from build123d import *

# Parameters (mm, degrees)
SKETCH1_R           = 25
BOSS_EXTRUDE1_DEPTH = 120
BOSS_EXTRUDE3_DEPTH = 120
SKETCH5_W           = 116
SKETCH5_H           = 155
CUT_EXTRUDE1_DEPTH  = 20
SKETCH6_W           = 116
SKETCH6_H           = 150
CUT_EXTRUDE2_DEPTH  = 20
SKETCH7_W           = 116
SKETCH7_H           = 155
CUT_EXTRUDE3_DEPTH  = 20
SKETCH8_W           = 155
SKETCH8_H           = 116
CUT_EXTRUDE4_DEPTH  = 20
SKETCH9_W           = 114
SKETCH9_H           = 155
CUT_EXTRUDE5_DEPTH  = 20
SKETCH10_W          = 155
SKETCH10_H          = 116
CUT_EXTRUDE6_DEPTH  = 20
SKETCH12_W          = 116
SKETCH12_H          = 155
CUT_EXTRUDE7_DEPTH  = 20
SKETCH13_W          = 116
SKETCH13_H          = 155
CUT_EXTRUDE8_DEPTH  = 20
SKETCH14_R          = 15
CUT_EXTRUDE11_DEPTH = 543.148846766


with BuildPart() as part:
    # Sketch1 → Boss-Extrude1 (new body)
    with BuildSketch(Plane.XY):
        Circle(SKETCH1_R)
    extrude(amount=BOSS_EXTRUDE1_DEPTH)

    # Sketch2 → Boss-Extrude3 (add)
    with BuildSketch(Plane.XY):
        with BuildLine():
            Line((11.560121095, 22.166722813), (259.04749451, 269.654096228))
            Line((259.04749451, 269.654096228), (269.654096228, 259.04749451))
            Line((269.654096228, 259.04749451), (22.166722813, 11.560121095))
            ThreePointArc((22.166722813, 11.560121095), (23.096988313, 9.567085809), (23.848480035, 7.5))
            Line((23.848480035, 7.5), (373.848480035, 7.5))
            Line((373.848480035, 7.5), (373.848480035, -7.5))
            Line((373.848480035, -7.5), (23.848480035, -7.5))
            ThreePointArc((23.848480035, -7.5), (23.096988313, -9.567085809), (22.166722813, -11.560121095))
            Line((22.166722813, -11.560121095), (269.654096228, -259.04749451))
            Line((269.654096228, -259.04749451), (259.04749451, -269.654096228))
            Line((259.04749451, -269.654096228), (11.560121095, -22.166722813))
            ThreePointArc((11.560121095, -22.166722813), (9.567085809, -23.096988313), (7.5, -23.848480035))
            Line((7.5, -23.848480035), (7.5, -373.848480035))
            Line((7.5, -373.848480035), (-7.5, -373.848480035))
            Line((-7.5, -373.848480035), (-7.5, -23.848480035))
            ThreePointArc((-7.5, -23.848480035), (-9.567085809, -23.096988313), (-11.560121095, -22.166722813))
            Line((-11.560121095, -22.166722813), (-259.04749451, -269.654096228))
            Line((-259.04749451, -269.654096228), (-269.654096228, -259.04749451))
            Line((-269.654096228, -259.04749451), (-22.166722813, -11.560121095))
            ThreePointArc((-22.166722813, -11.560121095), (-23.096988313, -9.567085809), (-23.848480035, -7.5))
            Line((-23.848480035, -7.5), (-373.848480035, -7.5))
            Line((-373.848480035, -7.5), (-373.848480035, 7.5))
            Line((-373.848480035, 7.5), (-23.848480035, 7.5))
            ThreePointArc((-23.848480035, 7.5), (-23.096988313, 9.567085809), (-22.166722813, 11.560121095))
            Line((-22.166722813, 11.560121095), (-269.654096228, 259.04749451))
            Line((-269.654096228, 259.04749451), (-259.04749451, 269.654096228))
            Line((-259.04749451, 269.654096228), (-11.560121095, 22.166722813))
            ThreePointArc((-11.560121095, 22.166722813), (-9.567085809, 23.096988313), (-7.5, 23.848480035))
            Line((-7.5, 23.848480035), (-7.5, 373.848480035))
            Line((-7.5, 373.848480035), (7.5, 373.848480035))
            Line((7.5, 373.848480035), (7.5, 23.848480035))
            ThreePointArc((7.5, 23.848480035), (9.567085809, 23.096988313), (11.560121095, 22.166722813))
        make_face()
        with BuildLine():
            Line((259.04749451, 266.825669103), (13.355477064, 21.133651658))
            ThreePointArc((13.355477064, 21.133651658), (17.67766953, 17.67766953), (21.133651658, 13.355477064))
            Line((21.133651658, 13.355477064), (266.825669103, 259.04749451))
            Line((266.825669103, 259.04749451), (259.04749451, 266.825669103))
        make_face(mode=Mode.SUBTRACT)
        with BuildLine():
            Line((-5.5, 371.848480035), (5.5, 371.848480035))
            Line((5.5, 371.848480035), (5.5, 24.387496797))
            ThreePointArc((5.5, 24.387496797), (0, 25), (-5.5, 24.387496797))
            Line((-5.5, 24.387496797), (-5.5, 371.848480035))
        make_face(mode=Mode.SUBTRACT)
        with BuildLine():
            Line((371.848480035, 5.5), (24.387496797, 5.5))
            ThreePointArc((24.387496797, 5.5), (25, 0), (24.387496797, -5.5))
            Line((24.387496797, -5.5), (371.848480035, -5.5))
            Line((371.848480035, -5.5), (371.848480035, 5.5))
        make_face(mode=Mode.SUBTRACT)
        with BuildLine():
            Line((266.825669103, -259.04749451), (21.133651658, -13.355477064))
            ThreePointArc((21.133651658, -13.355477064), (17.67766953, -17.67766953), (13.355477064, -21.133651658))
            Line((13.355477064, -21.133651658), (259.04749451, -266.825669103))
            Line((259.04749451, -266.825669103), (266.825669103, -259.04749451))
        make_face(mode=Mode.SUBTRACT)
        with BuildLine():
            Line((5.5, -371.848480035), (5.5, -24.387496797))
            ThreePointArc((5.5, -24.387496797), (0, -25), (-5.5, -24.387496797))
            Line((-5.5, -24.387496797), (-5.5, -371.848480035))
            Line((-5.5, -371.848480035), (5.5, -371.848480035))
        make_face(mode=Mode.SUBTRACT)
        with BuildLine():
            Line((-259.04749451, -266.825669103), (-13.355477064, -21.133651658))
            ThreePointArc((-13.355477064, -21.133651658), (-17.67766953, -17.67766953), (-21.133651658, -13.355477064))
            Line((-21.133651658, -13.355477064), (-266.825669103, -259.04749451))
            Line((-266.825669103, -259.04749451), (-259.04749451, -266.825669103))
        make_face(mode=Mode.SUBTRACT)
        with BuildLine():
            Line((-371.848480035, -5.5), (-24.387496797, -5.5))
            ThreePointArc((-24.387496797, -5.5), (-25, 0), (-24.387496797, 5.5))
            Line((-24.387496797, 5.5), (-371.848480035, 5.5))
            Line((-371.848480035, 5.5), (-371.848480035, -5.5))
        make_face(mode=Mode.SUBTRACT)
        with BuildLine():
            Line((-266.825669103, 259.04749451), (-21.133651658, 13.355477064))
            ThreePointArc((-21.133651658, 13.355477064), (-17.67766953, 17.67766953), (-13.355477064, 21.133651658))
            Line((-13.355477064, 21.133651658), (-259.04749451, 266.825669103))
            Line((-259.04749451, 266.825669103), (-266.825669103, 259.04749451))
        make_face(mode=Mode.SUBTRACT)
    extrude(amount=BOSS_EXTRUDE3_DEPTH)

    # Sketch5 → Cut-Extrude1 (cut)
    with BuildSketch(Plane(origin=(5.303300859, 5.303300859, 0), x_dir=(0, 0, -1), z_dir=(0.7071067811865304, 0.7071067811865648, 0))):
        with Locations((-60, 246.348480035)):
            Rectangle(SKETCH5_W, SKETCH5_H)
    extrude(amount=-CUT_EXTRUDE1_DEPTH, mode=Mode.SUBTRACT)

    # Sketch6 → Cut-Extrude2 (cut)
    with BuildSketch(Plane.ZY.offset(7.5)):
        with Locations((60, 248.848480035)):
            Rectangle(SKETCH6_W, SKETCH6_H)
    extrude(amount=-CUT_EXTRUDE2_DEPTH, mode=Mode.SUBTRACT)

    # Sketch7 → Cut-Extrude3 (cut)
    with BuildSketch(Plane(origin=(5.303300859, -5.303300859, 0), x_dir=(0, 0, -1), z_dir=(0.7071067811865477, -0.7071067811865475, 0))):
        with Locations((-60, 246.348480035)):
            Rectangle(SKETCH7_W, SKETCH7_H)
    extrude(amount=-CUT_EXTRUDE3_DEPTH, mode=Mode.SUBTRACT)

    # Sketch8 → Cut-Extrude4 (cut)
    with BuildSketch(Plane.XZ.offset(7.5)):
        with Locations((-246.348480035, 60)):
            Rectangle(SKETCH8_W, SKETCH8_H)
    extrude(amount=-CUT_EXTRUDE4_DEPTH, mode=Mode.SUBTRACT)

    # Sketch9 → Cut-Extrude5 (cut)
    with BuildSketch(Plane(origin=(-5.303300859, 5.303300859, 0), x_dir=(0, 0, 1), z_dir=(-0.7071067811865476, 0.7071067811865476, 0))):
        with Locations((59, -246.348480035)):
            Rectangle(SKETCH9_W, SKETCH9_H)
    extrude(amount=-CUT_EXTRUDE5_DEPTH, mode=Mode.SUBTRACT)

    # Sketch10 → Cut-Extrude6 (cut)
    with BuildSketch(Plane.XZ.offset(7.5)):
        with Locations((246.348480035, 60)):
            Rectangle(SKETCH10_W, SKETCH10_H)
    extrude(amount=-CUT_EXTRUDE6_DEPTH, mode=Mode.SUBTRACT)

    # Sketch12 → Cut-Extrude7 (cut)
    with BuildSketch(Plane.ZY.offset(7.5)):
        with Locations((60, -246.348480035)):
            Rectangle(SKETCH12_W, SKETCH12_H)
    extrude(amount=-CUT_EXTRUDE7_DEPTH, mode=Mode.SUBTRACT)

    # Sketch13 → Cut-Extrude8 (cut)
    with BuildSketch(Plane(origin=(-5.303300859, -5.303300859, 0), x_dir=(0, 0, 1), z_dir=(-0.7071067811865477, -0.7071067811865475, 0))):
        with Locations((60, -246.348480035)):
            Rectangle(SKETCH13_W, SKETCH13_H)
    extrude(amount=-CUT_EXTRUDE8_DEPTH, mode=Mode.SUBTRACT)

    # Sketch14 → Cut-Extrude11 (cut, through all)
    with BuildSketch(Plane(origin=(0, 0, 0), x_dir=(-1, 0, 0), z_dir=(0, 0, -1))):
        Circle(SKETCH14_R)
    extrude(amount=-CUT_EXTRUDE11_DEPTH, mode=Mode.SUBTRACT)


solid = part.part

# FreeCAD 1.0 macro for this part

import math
import FreeCAD as App
import Part
import Sketcher
from FreeCAD import Vector
Q = App.Units.Quantity


def add_polygon(sketch, points):
    """Adds a closed chain of lines whose ends are joined by coincident constraints."""
    first, n = sketch.GeometryCount, len(points)
    for a, b in zip(points, points[1:] + points[:1]):
        sketch.addGeometry(Part.LineSegment(App.Vector(*a, 0), App.Vector(*b, 0)), False)
    for i in range(n):
        sketch.addConstraint(Sketcher.Constraint("Coincident", first + i, 2, first + (i + 1) % n, 1))

doc = App.newDocument("Part")
body = doc.addObject("PartDesign::Body", "Body")

sketch1 = body.newObject("Sketcher::SketchObject", "Sketch")
sketch1.AttachmentSupport = (doc.getObject("XY_Plane"), [""])
sketch1.MapMode = "FlatFace"
sketch1.addGeometry(Part.Circle(Vector(0, 0, 0), Vector(0, 0, 1), 25), False)
sketch1.addConstraint(Sketcher.Constraint("Coincident", 0, 3, -1, 1))
sketch1.addConstraint(Sketcher.Constraint("Diameter", 0, Q("50 mm")))
pad1 = body.newObject("PartDesign::Pad", "Pad")
pad1.Profile = sketch1
pad1.Length = 120

sketch2 = body.newObject("Sketcher::SketchObject", "Sketch001")
sketch2.AttachmentSupport = (doc.getObject("XY_Plane"), [""])
sketch2.MapMode = "FlatFace"
sketch2.addGeometry(Part.LineSegment(Vector(259, 269.7, 0), Vector(11.6, 22.2, 0)), False)
sketch2.addGeometry(Part.ArcOfCircle(Part.Circle(Vector(0, 0, 0), Vector(0, 0, 1), 25), math.radians(62.46), math.radians(72.54)), False)
sketch2.addGeometry(Part.LineSegment(Vector(7.5, 23.8, 0), Vector(7.5, 373.8, 0)), False)
sketch2.addGeometry(Part.LineSegment(Vector(7.5, 373.8, 0), Vector(-7.5, 373.8, 0)), False)
sketch2.addGeometry(Part.LineSegment(Vector(-7.5, 373.8, 0), Vector(-7.5, 23.8, 0)), False)
sketch2.addGeometry(Part.ArcOfCircle(Part.Circle(Vector(0, 0, 0), Vector(0, 0, 1), 25), math.radians(107.46), math.radians(117.54)), False)
sketch2.addGeometry(Part.LineSegment(Vector(-11.6, 22.2, 0), Vector(-259, 269.7, 0)), False)
sketch2.addGeometry(Part.LineSegment(Vector(-259, 269.7, 0), Vector(-269.7, 259, 0)), False)
sketch2.addGeometry(Part.LineSegment(Vector(-269.7, 259, 0), Vector(-22.2, 11.6, 0)), False)
sketch2.addGeometry(Part.ArcOfCircle(Part.Circle(Vector(0, 0, 0), Vector(0, 0, 1), 25), math.radians(152.46), math.radians(162.54)), False)
sketch2.addGeometry(Part.LineSegment(Vector(-23.8, 7.5, 0), Vector(-373.8, 7.5, 0)), False)
sketch2.addGeometry(Part.LineSegment(Vector(-373.8, 7.5, 0), Vector(-373.8, -7.5, 0)), False)
sketch2.addGeometry(Part.LineSegment(Vector(-373.8, -7.5, 0), Vector(-23.8, -7.5, 0)), False)
sketch2.addGeometry(Part.ArcOfCircle(Part.Circle(Vector(0, 0, 0), Vector(0, 0, 1), 25), math.radians(-162.54), math.radians(-152.46)), False)
sketch2.addGeometry(Part.LineSegment(Vector(-22.2, -11.6, 0), Vector(-269.7, -259, 0)), False)
sketch2.addGeometry(Part.LineSegment(Vector(-269.7, -259, 0), Vector(-259, -269.7, 0)), False)
sketch2.addGeometry(Part.LineSegment(Vector(-259, -269.7, 0), Vector(-11.6, -22.2, 0)), False)
sketch2.addGeometry(Part.ArcOfCircle(Part.Circle(Vector(0, 0, 0), Vector(0, 0, 1), 25), math.radians(-117.54), math.radians(-107.46)), False)
sketch2.addGeometry(Part.LineSegment(Vector(-7.5, -23.8, 0), Vector(-7.5, -373.8, 0)), False)
sketch2.addGeometry(Part.LineSegment(Vector(-7.5, -373.8, 0), Vector(7.5, -373.8, 0)), False)
sketch2.addGeometry(Part.LineSegment(Vector(7.5, -373.8, 0), Vector(7.5, -23.8, 0)), False)
sketch2.addGeometry(Part.ArcOfCircle(Part.Circle(Vector(0, 0, 0), Vector(0, 0, 1), 25), math.radians(-72.54), math.radians(-62.46)), False)
sketch2.addGeometry(Part.LineSegment(Vector(11.6, -22.2, 0), Vector(259, -269.7, 0)), False)
sketch2.addGeometry(Part.LineSegment(Vector(259, -269.7, 0), Vector(269.7, -259, 0)), False)
sketch2.addGeometry(Part.LineSegment(Vector(269.7, -259, 0), Vector(22.2, -11.6, 0)), False)
sketch2.addGeometry(Part.ArcOfCircle(Part.Circle(Vector(0, 0, 0), Vector(0, 0, 1), 25), math.radians(-27.54), math.radians(-17.46)), False)
sketch2.addGeometry(Part.LineSegment(Vector(23.8, -7.5, 0), Vector(373.8, -7.5, 0)), False)
sketch2.addGeometry(Part.LineSegment(Vector(373.8, -7.5, 0), Vector(373.8, 7.5, 0)), False)
sketch2.addGeometry(Part.LineSegment(Vector(373.8, 7.5, 0), Vector(23.8, 7.5, 0)), False)
sketch2.addGeometry(Part.ArcOfCircle(Part.Circle(Vector(0, 0, 0), Vector(0, 0, 1), 25), math.radians(17.46), math.radians(27.54)), False)
sketch2.addGeometry(Part.LineSegment(Vector(22.2, 11.6, 0), Vector(269.7, 259, 0)), False)
sketch2.addGeometry(Part.LineSegment(Vector(269.7, 259, 0), Vector(259, 269.7, 0)), False)
sketch2.addGeometry(Part.LineSegment(Vector(266.8, -259, 0), Vector(259, -266.8, 0)), False)
sketch2.addGeometry(Part.LineSegment(Vector(259, -266.8, 0), Vector(13.4, -21.1, 0)), False)
sketch2.addGeometry(Part.ArcOfCircle(Part.Circle(Vector(0, 0, 0), Vector(0, 0, 1), 25), math.radians(-58), math.radians(-32)), False)
sketch2.addGeometry(Part.LineSegment(Vector(21.1, -13.4, 0), Vector(266.8, -259, 0)), False)
sketch2.addGeometry(Part.LineSegment(Vector(5.5, -371.8, 0), Vector(-5.5, -371.8, 0)), False)
sketch2.addGeometry(Part.LineSegment(Vector(-5.5, -371.8, 0), Vector(-5.5, -24.4, 0)), False)
sketch2.addGeometry(Part.ArcOfCircle(Part.Circle(Vector(0, 0, 0), Vector(0, 0, 1), 25), math.radians(-103), math.radians(-77)), False)
sketch2.addGeometry(Part.LineSegment(Vector(5.5, -24.4, 0), Vector(5.5, -371.8, 0)), False)
sketch2.addGeometry(Part.LineSegment(Vector(-259, -266.8, 0), Vector(-266.8, -259, 0)), False)
sketch2.addGeometry(Part.LineSegment(Vector(-266.8, -259, 0), Vector(-21.1, -13.4, 0)), False)
sketch2.addGeometry(Part.ArcOfCircle(Part.Circle(Vector(0, 0, 0), Vector(0, 0, 1), 25), math.radians(-148), math.radians(-122)), False)
sketch2.addGeometry(Part.LineSegment(Vector(-13.4, -21.1, 0), Vector(-259, -266.8, 0)), False)
sketch2.addGeometry(Part.LineSegment(Vector(371.8, 5.5, 0), Vector(371.8, -5.5, 0)), False)
sketch2.addGeometry(Part.LineSegment(Vector(371.8, -5.5, 0), Vector(24.4, -5.5, 0)), False)
sketch2.addGeometry(Part.ArcOfCircle(Part.Circle(Vector(0, 0, 0), Vector(0, 0, 1), 25), math.radians(-13), math.radians(13)), False)
sketch2.addGeometry(Part.LineSegment(Vector(24.4, 5.5, 0), Vector(371.8, 5.5, 0)), False)
sketch2.addGeometry(Part.LineSegment(Vector(259, 266.8, 0), Vector(266.8, 259, 0)), False)
sketch2.addGeometry(Part.LineSegment(Vector(266.8, 259, 0), Vector(21.1, 13.4, 0)), False)
sketch2.addGeometry(Part.ArcOfCircle(Part.Circle(Vector(0, 0, 0), Vector(0, 0, 1), 25), math.radians(32), math.radians(58)), False)
sketch2.addGeometry(Part.LineSegment(Vector(13.4, 21.1, 0), Vector(259, 266.8, 0)), False)
sketch2.addGeometry(Part.LineSegment(Vector(-266.8, 259, 0), Vector(-259, 266.8, 0)), False)
sketch2.addGeometry(Part.LineSegment(Vector(-259, 266.8, 0), Vector(-13.4, 21.1, 0)), False)
sketch2.addGeometry(Part.ArcOfCircle(Part.Circle(Vector(0, 0, 0), Vector(0, 0, 1), 25), math.radians(122), math.radians(148)), False)
sketch2.addGeometry(Part.LineSegment(Vector(-21.1, 13.4, 0), Vector(-266.8, 259, 0)), False)
sketch2.addGeometry(Part.LineSegment(Vector(-371.8, -5.5, 0), Vector(-371.8, 5.5, 0)), False)
sketch2.addGeometry(Part.LineSegment(Vector(-371.8, 5.5, 0), Vector(-24.4, 5.5, 0)), False)
sketch2.addGeometry(Part.ArcOfCircle(Part.Circle(Vector(0, 0, 0), Vector(0, 0, 1), 25), math.radians(167), math.radians(193)), False)
sketch2.addGeometry(Part.LineSegment(Vector(-24.4, -5.5, 0), Vector(-371.8, -5.5, 0)), False)
sketch2.addGeometry(Part.LineSegment(Vector(-5.5, 371.8, 0), Vector(5.5, 371.8, 0)), False)
sketch2.addGeometry(Part.LineSegment(Vector(5.5, 371.8, 0), Vector(5.5, 24.4, 0)), False)
sketch2.addGeometry(Part.ArcOfCircle(Part.Circle(Vector(0, 0, 0), Vector(0, 0, 1), 25), math.radians(77), math.radians(103)), False)
sketch2.addGeometry(Part.LineSegment(Vector(-5.5, 24.4, 0), Vector(-5.5, 371.8, 0)), False)
sketch2.addConstraint(Sketcher.Constraint("Coincident", 0, 2, 1, 1))
sketch2.addConstraint(Sketcher.Constraint("Coincident", 1, 2, 2, 1))
sketch2.addConstraint(Sketcher.Constraint("Coincident", 2, 2, 3, 1))
sketch2.addConstraint(Sketcher.Constraint("Coincident", 3, 2, 4, 1))
sketch2.addConstraint(Sketcher.Constraint("Coincident", 4, 2, 5, 1))
sketch2.addConstraint(Sketcher.Constraint("Coincident", 5, 2, 6, 1))
sketch2.addConstraint(Sketcher.Constraint("Coincident", 6, 2, 7, 1))
sketch2.addConstraint(Sketcher.Constraint("Coincident", 7, 2, 8, 1))
sketch2.addConstraint(Sketcher.Constraint("Coincident", 8, 2, 9, 1))
sketch2.addConstraint(Sketcher.Constraint("Coincident", 9, 2, 10, 1))
sketch2.addConstraint(Sketcher.Constraint("Coincident", 10, 2, 11, 1))
sketch2.addConstraint(Sketcher.Constraint("Coincident", 11, 2, 12, 1))
sketch2.addConstraint(Sketcher.Constraint("Coincident", 12, 2, 13, 1))
sketch2.addConstraint(Sketcher.Constraint("Coincident", 13, 2, 14, 1))
sketch2.addConstraint(Sketcher.Constraint("Coincident", 14, 2, 15, 1))
sketch2.addConstraint(Sketcher.Constraint("Coincident", 15, 2, 16, 1))
sketch2.addConstraint(Sketcher.Constraint("Coincident", 16, 2, 17, 1))
sketch2.addConstraint(Sketcher.Constraint("Coincident", 17, 2, 18, 1))
sketch2.addConstraint(Sketcher.Constraint("Coincident", 18, 2, 19, 1))
sketch2.addConstraint(Sketcher.Constraint("Coincident", 19, 2, 20, 1))
sketch2.addConstraint(Sketcher.Constraint("Coincident", 20, 2, 21, 1))
sketch2.addConstraint(Sketcher.Constraint("Coincident", 21, 2, 22, 1))
sketch2.addConstraint(Sketcher.Constraint("Coincident", 22, 2, 23, 1))
sketch2.addConstraint(Sketcher.Constraint("Coincident", 23, 2, 24, 1))
sketch2.addConstraint(Sketcher.Constraint("Coincident", 24, 2, 25, 1))
sketch2.addConstraint(Sketcher.Constraint("Coincident", 25, 2, 26, 1))
sketch2.addConstraint(Sketcher.Constraint("Coincident", 26, 2, 27, 1))
sketch2.addConstraint(Sketcher.Constraint("Coincident", 27, 2, 28, 1))
sketch2.addConstraint(Sketcher.Constraint("Coincident", 28, 2, 29, 1))
sketch2.addConstraint(Sketcher.Constraint("Coincident", 29, 2, 30, 1))
sketch2.addConstraint(Sketcher.Constraint("Coincident", 30, 2, 31, 1))
sketch2.addConstraint(Sketcher.Constraint("Coincident", 31, 2, 0, 1))
sketch2.addConstraint(Sketcher.Constraint("Coincident", 32, 2, 33, 1))
sketch2.addConstraint(Sketcher.Constraint("Coincident", 33, 2, 34, 1))
sketch2.addConstraint(Sketcher.Constraint("Coincident", 34, 2, 35, 1))
sketch2.addConstraint(Sketcher.Constraint("Coincident", 35, 2, 32, 1))
sketch2.addConstraint(Sketcher.Constraint("Coincident", 36, 2, 37, 1))
sketch2.addConstraint(Sketcher.Constraint("Coincident", 37, 2, 38, 1))
sketch2.addConstraint(Sketcher.Constraint("Coincident", 38, 2, 39, 1))
sketch2.addConstraint(Sketcher.Constraint("Coincident", 39, 2, 36, 1))
sketch2.addConstraint(Sketcher.Constraint("Coincident", 40, 2, 41, 1))
sketch2.addConstraint(Sketcher.Constraint("Coincident", 41, 2, 42, 1))
sketch2.addConstraint(Sketcher.Constraint("Coincident", 42, 2, 43, 1))
sketch2.addConstraint(Sketcher.Constraint("Coincident", 43, 2, 40, 1))
sketch2.addConstraint(Sketcher.Constraint("Coincident", 44, 2, 45, 1))
sketch2.addConstraint(Sketcher.Constraint("Coincident", 45, 2, 46, 1))
sketch2.addConstraint(Sketcher.Constraint("Coincident", 46, 2, 47, 1))
sketch2.addConstraint(Sketcher.Constraint("Coincident", 47, 2, 44, 1))
sketch2.addConstraint(Sketcher.Constraint("Coincident", 48, 2, 49, 1))
sketch2.addConstraint(Sketcher.Constraint("Coincident", 49, 2, 50, 1))
sketch2.addConstraint(Sketcher.Constraint("Coincident", 50, 2, 51, 1))
sketch2.addConstraint(Sketcher.Constraint("Coincident", 51, 2, 48, 1))
sketch2.addConstraint(Sketcher.Constraint("Coincident", 52, 2, 53, 1))
sketch2.addConstraint(Sketcher.Constraint("Coincident", 53, 2, 54, 1))
sketch2.addConstraint(Sketcher.Constraint("Coincident", 54, 2, 55, 1))
sketch2.addConstraint(Sketcher.Constraint("Coincident", 55, 2, 52, 1))
sketch2.addConstraint(Sketcher.Constraint("Coincident", 56, 2, 57, 1))
sketch2.addConstraint(Sketcher.Constraint("Coincident", 57, 2, 58, 1))
sketch2.addConstraint(Sketcher.Constraint("Coincident", 58, 2, 59, 1))
sketch2.addConstraint(Sketcher.Constraint("Coincident", 59, 2, 56, 1))
sketch2.addConstraint(Sketcher.Constraint("Coincident", 60, 2, 61, 1))
sketch2.addConstraint(Sketcher.Constraint("Coincident", 61, 2, 62, 1))
sketch2.addConstraint(Sketcher.Constraint("Coincident", 62, 2, 63, 1))
sketch2.addConstraint(Sketcher.Constraint("Coincident", 63, 2, 60, 1))
sketch2.addConstraint(Sketcher.Constraint("Vertical", 2))
sketch2.addConstraint(Sketcher.Constraint("Horizontal", 3))
sketch2.addConstraint(Sketcher.Constraint("Vertical", 4))
sketch2.addConstraint(Sketcher.Constraint("Horizontal", 10))
sketch2.addConstraint(Sketcher.Constraint("Vertical", 11))
sketch2.addConstraint(Sketcher.Constraint("Horizontal", 12))
sketch2.addConstraint(Sketcher.Constraint("Vertical", 18))
sketch2.addConstraint(Sketcher.Constraint("Horizontal", 19))
sketch2.addConstraint(Sketcher.Constraint("Vertical", 20))
sketch2.addConstraint(Sketcher.Constraint("Horizontal", 26))
sketch2.addConstraint(Sketcher.Constraint("Vertical", 27))
sketch2.addConstraint(Sketcher.Constraint("Horizontal", 28))
sketch2.addConstraint(Sketcher.Constraint("Horizontal", 36))
sketch2.addConstraint(Sketcher.Constraint("Vertical", 37))
sketch2.addConstraint(Sketcher.Constraint("Vertical", 39))
sketch2.addConstraint(Sketcher.Constraint("Vertical", 44))
sketch2.addConstraint(Sketcher.Constraint("Horizontal", 45))
sketch2.addConstraint(Sketcher.Constraint("Horizontal", 47))
sketch2.addConstraint(Sketcher.Constraint("Vertical", 56))
sketch2.addConstraint(Sketcher.Constraint("Horizontal", 57))
sketch2.addConstraint(Sketcher.Constraint("Horizontal", 59))
sketch2.addConstraint(Sketcher.Constraint("Horizontal", 60))
sketch2.addConstraint(Sketcher.Constraint("Vertical", 61))
sketch2.addConstraint(Sketcher.Constraint("Vertical", 63))
sketch2.addConstraint(Sketcher.Constraint("Coincident", 1, 3, -1, 1))
sketch2.addConstraint(Sketcher.Constraint("Coincident", 5, 3, -1, 1))
sketch2.addConstraint(Sketcher.Constraint("Coincident", 9, 3, -1, 1))
sketch2.addConstraint(Sketcher.Constraint("Coincident", 13, 3, -1, 1))
sketch2.addConstraint(Sketcher.Constraint("Coincident", 17, 3, -1, 1))
sketch2.addConstraint(Sketcher.Constraint("Coincident", 21, 3, -1, 1))
sketch2.addConstraint(Sketcher.Constraint("Coincident", 25, 3, -1, 1))
sketch2.addConstraint(Sketcher.Constraint("Coincident", 29, 3, -1, 1))
sketch2.addConstraint(Sketcher.Constraint("Coincident", 34, 3, -1, 1))
sketch2.addConstraint(Sketcher.Constraint("Coincident", 38, 3, -1, 1))
sketch2.addConstraint(Sketcher.Constraint("Coincident", 42, 3, -1, 1))
sketch2.addConstraint(Sketcher.Constraint("Coincident", 46, 3, -1, 1))
sketch2.addConstraint(Sketcher.Constraint("Coincident", 50, 3, -1, 1))
sketch2.addConstraint(Sketcher.Constraint("Coincident", 54, 3, -1, 1))
sketch2.addConstraint(Sketcher.Constraint("Coincident", 58, 3, -1, 1))
sketch2.addConstraint(Sketcher.Constraint("Coincident", 62, 3, -1, 1))
sketch2.addConstraint(Sketcher.Constraint("Equal", 1, 5))
sketch2.addConstraint(Sketcher.Constraint("Equal", 5, 9))
sketch2.addConstraint(Sketcher.Constraint("Equal", 9, 13))
sketch2.addConstraint(Sketcher.Constraint("Equal", 13, 17))
sketch2.addConstraint(Sketcher.Constraint("Equal", 17, 21))
sketch2.addConstraint(Sketcher.Constraint("Equal", 21, 25))
sketch2.addConstraint(Sketcher.Constraint("Equal", 25, 29))
sketch2.addConstraint(Sketcher.Constraint("Equal", 29, 34))
sketch2.addConstraint(Sketcher.Constraint("Equal", 34, 38))
sketch2.addConstraint(Sketcher.Constraint("Equal", 38, 42))
sketch2.addConstraint(Sketcher.Constraint("Equal", 42, 46))
sketch2.addConstraint(Sketcher.Constraint("Equal", 46, 50))
sketch2.addConstraint(Sketcher.Constraint("Equal", 50, 54))
sketch2.addConstraint(Sketcher.Constraint("Equal", 54, 58))
sketch2.addConstraint(Sketcher.Constraint("Equal", 58, 62))
sketch2.addConstraint(Sketcher.Constraint("Symmetric", 2, 2, 18, 2, -1, 1))
sketch2.addConstraint(Sketcher.Constraint("Symmetric", 6, 2, 22, 2, -1, 1))
sketch2.addConstraint(Sketcher.Constraint("Symmetric", 7, 2, 23, 2, -1, 1))
sketch2.addConstraint(Sketcher.Constraint("Symmetric", 10, 2, 26, 2, -1, 1))
sketch2.addConstraint(Sketcher.Constraint("Symmetric", 14, 2, 30, 2, -1, 1))
sketch2.addConstraint(Sketcher.Constraint("Symmetric", 15, 2, 31, 2, -1, 1))
sketch2.addConstraint(Sketcher.Constraint("Symmetric", 40, 2, 48, 2, -1, 1))
sketch2.addConstraint(Sketcher.Constraint("Symmetric", 43, 2, 51, 2, -1, 1))
sketch2.addConstraint(Sketcher.Constraint("Symmetric", 32, 2, 52, 2, -1, 1))
sketch2.addConstraint(Sketcher.Constraint("Symmetric", 35, 2, 55, 2, -1, 1))
sketch2.addConstraint(Sketcher.Constraint("Symmetric", 44, 2, 56, 2, -1, 1))
sketch2.addConstraint(Sketcher.Constraint("Symmetric", 36, 2, 60, 2, -1, 1))
sketch2.addConstraint(Sketcher.Constraint("Symmetric", 15, 2, 22, 2, -2))
sketch2.addConstraint(Sketcher.Constraint("Symmetric", 14, 2, 23, 2, -2))
sketch2.addConstraint(Sketcher.Constraint("Symmetric", 35, 2, 40, 2, -2))
sketch2.addConstraint(Sketcher.Constraint("Symmetric", 32, 2, 43, 2, -2))
sketch2.addConstraint(Sketcher.Constraint("Perpendicular", 0, 6))
sketch2.addConstraint(Sketcher.Constraint("Perpendicular", 6, 7))
sketch2.addConstraint(Sketcher.Constraint("Perpendicular", 7, 8))
sketch2.addConstraint(Sketcher.Constraint("Perpendicular", 8, 14))
sketch2.addConstraint(Sketcher.Constraint("Perpendicular", 14, 15))
sketch2.addConstraint(Sketcher.Constraint("Perpendicular", 15, 16))
sketch2.addConstraint(Sketcher.Constraint("Perpendicular", 16, 22))
sketch2.addConstraint(Sketcher.Constraint("Perpendicular", 23, 24))
sketch2.addConstraint(Sketcher.Constraint("Perpendicular", 24, 30))
sketch2.addConstraint(Sketcher.Constraint("Perpendicular", 31, 32))
sketch2.addConstraint(Sketcher.Constraint("Perpendicular", 32, 33))
sketch2.addConstraint(Sketcher.Constraint("Parallel", 33, 35))
sketch2.addConstraint(Sketcher.Constraint("Perpendicular", 40, 41))
sketch2.addConstraint(Sketcher.Constraint("Parallel", 41, 43))
sketch2.addConstraint(Sketcher.Constraint("Perpendicular", 48, 49))
sketch2.addConstraint(Sketcher.Constraint("Parallel", 49, 51))
sketch2.addConstraint(Sketcher.Constraint("Perpendicular", 52, 53))
sketch2.addConstraint(Sketcher.Constraint("Parallel", 53, 55))
sketch2.addConstraint(Sketcher.Constraint("Horizontal", 1, 2, 4, 2))
sketch2.addConstraint(Sketcher.Constraint("Horizontal", 17, 2, 20, 2))
sketch2.addConstraint(Sketcher.Constraint("Horizontal", 12, 2, 25, 2))
sketch2.addConstraint(Sketcher.Constraint("Horizontal", 10, 2, 27, 2))
sketch2.addConstraint(Sketcher.Constraint("Horizontal", 23, 2, 35, 2))
sketch2.addConstraint(Sketcher.Constraint("Horizontal", 37, 2, 38, 2))
sketch2.addConstraint(Sketcher.Constraint("Horizontal", 47, 2, 56, 2))
sketch2.addConstraint(Sketcher.Constraint("Horizontal", 45, 2, 58, 2))
sketch2.addConstraint(Sketcher.Constraint("Horizontal", 61, 2, 62, 2))
sketch2.addConstraint(Sketcher.Constraint("Vertical", 31, 2, 32, 2))
sketch2.addConstraint(Sketcher.Constraint("Equal", 28, 2))
sketch2.addConstraint(Sketcher.Constraint("Equal", 19, 11))
sketch2.addConstraint(Sketcher.Constraint("Equal", 59, 37))
sketch2.addConstraint(Sketcher.Constraint("Equal", 60, 44))
sketch2.addConstraint(Sketcher.Constraint("Equal", 6, 8))
sketch2.addConstraint(Sketcher.Constraint("Radius", 1, Q("25 mm")))
sketch2.addConstraint(Sketcher.Constraint("DistanceX", 3, 2, 3, 1, Q("15 mm")))
sketch2.addConstraint(Sketcher.Constraint("DistanceX", 10, 2, 10, 1, Q("350 mm")))
sketch2.addConstraint(Sketcher.Constraint("DistanceX", 36, 2, 36, 1, Q("11 mm")))
sketch2.addConstraint(Sketcher.Constraint("Distance", 0, Q("350 mm")))
sketch2.addConstraint(Sketcher.Constraint("Distance", 7, Q("15 mm")))
sketch2.addConstraint(Sketcher.Constraint("Distance", 32, Q("11 mm")))
sketch2.addConstraint(Sketcher.Constraint("DistanceX", 45, 2, 45, 1, Q("347.460983 mm")))
pad2 = body.newObject("PartDesign::Pad", "Pad001")
pad2.Profile = sketch2
pad2.Length = 120

sketch3 = body.newObject("Sketcher::SketchObject", "Sketch002")
sketch3.Placement = App.Placement(Vector(5.303301, 5.303301, 0), App.Rotation(Vector(0, 0, -1), Vector(-0.707106781, 0.707106781, 0), Vector(0.707106781, 0.707106781, 0), "ZXY"))
add_polygon(sketch3, [(-118, 324), (-118, 169), (-2, 169), (-2, 324)])
sketch3.addConstraint(Sketcher.Constraint("Vertical", 0))
sketch3.addConstraint(Sketcher.Constraint("Horizontal", 1))
sketch3.addConstraint(Sketcher.Constraint("Vertical", 2))
sketch3.addConstraint(Sketcher.Constraint("Horizontal", 3))
sketch3.addConstraint(Sketcher.Constraint("DistanceX", 1, 1, 1, 2, Q("116 mm")))
sketch3.addConstraint(Sketcher.Constraint("DistanceY", 0, 2, 0, 1, Q("155 mm")))
sketch3.addConstraint(Sketcher.Constraint("DistanceX", 0, 2, -1, 1, Q("118 mm")))
sketch3.addConstraint(Sketcher.Constraint("DistanceY", -1, 1, 0, 2, Q("168.84848 mm")))
pocket1 = body.newObject("PartDesign::Pocket", "Pocket")
pocket1.Profile = sketch3
pocket1.Length = 20

sketch4 = body.newObject("Sketcher::SketchObject", "Sketch003")
sketch4.AttachmentSupport = (doc.getObject("YZ_Plane"), [""])
sketch4.MapMode = "FlatFace"
sketch4.AttachmentOffset = App.Placement(Vector(0, 0, -7.5), App.Rotation())
add_polygon(sketch4, [(324, 2), (174, 2), (174, 118), (324, 118)])
sketch4.addConstraint(Sketcher.Constraint("Horizontal", 0))
sketch4.addConstraint(Sketcher.Constraint("Vertical", 1))
sketch4.addConstraint(Sketcher.Constraint("Horizontal", 2))
sketch4.addConstraint(Sketcher.Constraint("Vertical", 3))
sketch4.addConstraint(Sketcher.Constraint("DistanceX", 0, 2, 0, 1, Q("150 mm")))
sketch4.addConstraint(Sketcher.Constraint("DistanceY", 1, 1, 1, 2, Q("116 mm")))
sketch4.addConstraint(Sketcher.Constraint("DistanceY", -1, 1, 0, 2, Q("2 mm")))
sketch4.addConstraint(Sketcher.Constraint("DistanceX", -1, 1, 0, 2, Q("173.84848 mm")))
pocket2 = body.newObject("PartDesign::Pocket", "Pocket001")
pocket2.Profile = sketch4
pocket2.Length = 20
pocket2.Reversed = True

sketch5 = body.newObject("Sketcher::SketchObject", "Sketch004")
sketch5.Placement = App.Placement(Vector(5.303301, -5.303301, 0), App.Rotation(Vector(0, 0, -1), Vector(0.707106781, 0.707106781, 0), Vector(0.707106781, -0.707106781, 0), "ZXY"))
add_polygon(sketch5, [(-118, 324), (-118, 169), (-2, 169), (-2, 324)])
sketch5.addConstraint(Sketcher.Constraint("Vertical", 0))
sketch5.addConstraint(Sketcher.Constraint("Horizontal", 1))
sketch5.addConstraint(Sketcher.Constraint("Vertical", 2))
sketch5.addConstraint(Sketcher.Constraint("Horizontal", 3))
sketch5.addConstraint(Sketcher.Constraint("DistanceX", 1, 1, 1, 2, Q("116 mm")))
sketch5.addConstraint(Sketcher.Constraint("DistanceY", 0, 2, 0, 1, Q("155 mm")))
sketch5.addConstraint(Sketcher.Constraint("DistanceX", 0, 2, -1, 1, Q("118 mm")))
sketch5.addConstraint(Sketcher.Constraint("DistanceY", -1, 1, 0, 2, Q("168.84848 mm")))
pocket3 = body.newObject("PartDesign::Pocket", "Pocket002")
pocket3.Profile = sketch5
pocket3.Length = 20

sketch6 = body.newObject("Sketcher::SketchObject", "Sketch005")
sketch6.AttachmentSupport = (doc.getObject("XZ_Plane"), [""])
sketch6.MapMode = "FlatFace"
sketch6.AttachmentOffset = App.Placement(Vector(0, 0, 7.5), App.Rotation())
add_polygon(sketch6, [(-324, 118), (-324, 2), (-169, 2), (-169, 118)])
sketch6.addConstraint(Sketcher.Constraint("Vertical", 0))
sketch6.addConstraint(Sketcher.Constraint("Horizontal", 1))
sketch6.addConstraint(Sketcher.Constraint("Vertical", 2))
sketch6.addConstraint(Sketcher.Constraint("Horizontal", 3))
sketch6.addConstraint(Sketcher.Constraint("DistanceX", 1, 1, 1, 2, Q("155 mm")))
sketch6.addConstraint(Sketcher.Constraint("DistanceY", 0, 2, 0, 1, Q("116 mm")))
sketch6.addConstraint(Sketcher.Constraint("DistanceY", -1, 1, 0, 2, Q("2 mm")))
sketch6.addConstraint(Sketcher.Constraint("DistanceX", 0, 2, -1, 1, Q("323.84848 mm")))
pocket4 = body.newObject("PartDesign::Pocket", "Pocket003")
pocket4.Profile = sketch6
pocket4.Length = 20

sketch7 = body.newObject("Sketcher::SketchObject", "Sketch006")
sketch7.Placement = App.Placement(Vector(-5.303301, 5.303301, 0), App.Rotation(Vector(0, 0, 1), Vector(0.707106781, 0.707106781, 0), Vector(-0.707106781, 0.707106781, 0), "ZXY"))
add_polygon(sketch7, [(2, -169), (2, -324), (116, -324), (116, -169)])
sketch7.addConstraint(Sketcher.Constraint("Vertical", 0))
sketch7.addConstraint(Sketcher.Constraint("Horizontal", 1))
sketch7.addConstraint(Sketcher.Constraint("Vertical", 2))
sketch7.addConstraint(Sketcher.Constraint("Horizontal", 3))
sketch7.addConstraint(Sketcher.Constraint("DistanceX", 1, 1, 1, 2, Q("114 mm")))
sketch7.addConstraint(Sketcher.Constraint("DistanceY", 0, 2, 0, 1, Q("155 mm")))
sketch7.addConstraint(Sketcher.Constraint("DistanceX", -1, 1, 0, 2, Q("2 mm")))
sketch7.addConstraint(Sketcher.Constraint("DistanceY", 0, 2, -1, 1, Q("323.84848 mm")))
pocket5 = body.newObject("PartDesign::Pocket", "Pocket004")
pocket5.Profile = sketch7
pocket5.Length = 20

sketch8 = body.newObject("Sketcher::SketchObject", "Sketch007")
sketch8.AttachmentSupport = (doc.getObject("XZ_Plane"), [""])
sketch8.MapMode = "FlatFace"
sketch8.AttachmentOffset = App.Placement(Vector(0, 0, 7.5), App.Rotation())
add_polygon(sketch8, [(169, 118), (169, 2), (324, 2), (324, 118)])
sketch8.addConstraint(Sketcher.Constraint("Vertical", 0))
sketch8.addConstraint(Sketcher.Constraint("Horizontal", 1))
sketch8.addConstraint(Sketcher.Constraint("Vertical", 2))
sketch8.addConstraint(Sketcher.Constraint("Horizontal", 3))
sketch8.addConstraint(Sketcher.Constraint("DistanceX", 1, 1, 1, 2, Q("155 mm")))
sketch8.addConstraint(Sketcher.Constraint("DistanceY", 0, 2, 0, 1, Q("116 mm")))
sketch8.addConstraint(Sketcher.Constraint("DistanceY", -1, 1, 0, 2, Q("2 mm")))
sketch8.addConstraint(Sketcher.Constraint("DistanceX", -1, 1, 0, 2, Q("168.84848 mm")))
pocket6 = body.newObject("PartDesign::Pocket", "Pocket005")
pocket6.Profile = sketch8
pocket6.Length = 20

sketch9 = body.newObject("Sketcher::SketchObject", "Sketch008")
sketch9.AttachmentSupport = (doc.getObject("YZ_Plane"), [""])
sketch9.MapMode = "FlatFace"
sketch9.AttachmentOffset = App.Placement(Vector(0, 0, -7.5), App.Rotation())
add_polygon(sketch9, [(-169, 2), (-324, 2), (-324, 118), (-169, 118)])
sketch9.addConstraint(Sketcher.Constraint("Horizontal", 0))
sketch9.addConstraint(Sketcher.Constraint("Vertical", 1))
sketch9.addConstraint(Sketcher.Constraint("Horizontal", 2))
sketch9.addConstraint(Sketcher.Constraint("Vertical", 3))
sketch9.addConstraint(Sketcher.Constraint("DistanceX", 0, 2, 0, 1, Q("155 mm")))
sketch9.addConstraint(Sketcher.Constraint("DistanceY", 1, 1, 1, 2, Q("116 mm")))
sketch9.addConstraint(Sketcher.Constraint("DistanceY", -1, 1, 0, 2, Q("2 mm")))
sketch9.addConstraint(Sketcher.Constraint("DistanceX", 0, 2, -1, 1, Q("323.84848 mm")))
pocket7 = body.newObject("PartDesign::Pocket", "Pocket006")
pocket7.Profile = sketch9
pocket7.Length = 20
pocket7.Reversed = True

sketch10 = body.newObject("Sketcher::SketchObject", "Sketch009")
sketch10.Placement = App.Placement(Vector(-5.303301, -5.303301, 0), App.Rotation(Vector(0, 0, 1), Vector(-0.707106781, 0.707106781, 0), Vector(-0.707106781, -0.707106781, 0), "ZXY"))
add_polygon(sketch10, [(2, -169), (2, -324), (118, -324), (118, -169)])
sketch10.addConstraint(Sketcher.Constraint("Vertical", 0))
sketch10.addConstraint(Sketcher.Constraint("Horizontal", 1))
sketch10.addConstraint(Sketcher.Constraint("Vertical", 2))
sketch10.addConstraint(Sketcher.Constraint("Horizontal", 3))
sketch10.addConstraint(Sketcher.Constraint("DistanceX", 1, 1, 1, 2, Q("116 mm")))
sketch10.addConstraint(Sketcher.Constraint("DistanceY", 0, 2, 0, 1, Q("155 mm")))
sketch10.addConstraint(Sketcher.Constraint("DistanceX", -1, 1, 0, 2, Q("2 mm")))
sketch10.addConstraint(Sketcher.Constraint("DistanceY", 0, 2, -1, 1, Q("323.84848 mm")))
pocket8 = body.newObject("PartDesign::Pocket", "Pocket007")
pocket8.Profile = sketch10
pocket8.Length = 20

sketch11 = body.newObject("Sketcher::SketchObject", "Sketch010")
sketch11.AttachmentSupport = (doc.getObject("XY_Plane"), [""])
sketch11.MapMode = "FlatFace"
sketch11.addGeometry(Part.Circle(Vector(0, 0, 0), Vector(0, 0, 1), 15), False)
sketch11.addConstraint(Sketcher.Constraint("Coincident", 0, 3, -1, 1))
sketch11.addConstraint(Sketcher.Constraint("Diameter", 0, Q("30 mm")))
pocket9 = body.newObject("PartDesign::Pocket", "Pocket008")
pocket9.Profile = sketch11
pocket9.Type = "ThroughAll"
pocket9.Reversed = True

doc.recompute()
